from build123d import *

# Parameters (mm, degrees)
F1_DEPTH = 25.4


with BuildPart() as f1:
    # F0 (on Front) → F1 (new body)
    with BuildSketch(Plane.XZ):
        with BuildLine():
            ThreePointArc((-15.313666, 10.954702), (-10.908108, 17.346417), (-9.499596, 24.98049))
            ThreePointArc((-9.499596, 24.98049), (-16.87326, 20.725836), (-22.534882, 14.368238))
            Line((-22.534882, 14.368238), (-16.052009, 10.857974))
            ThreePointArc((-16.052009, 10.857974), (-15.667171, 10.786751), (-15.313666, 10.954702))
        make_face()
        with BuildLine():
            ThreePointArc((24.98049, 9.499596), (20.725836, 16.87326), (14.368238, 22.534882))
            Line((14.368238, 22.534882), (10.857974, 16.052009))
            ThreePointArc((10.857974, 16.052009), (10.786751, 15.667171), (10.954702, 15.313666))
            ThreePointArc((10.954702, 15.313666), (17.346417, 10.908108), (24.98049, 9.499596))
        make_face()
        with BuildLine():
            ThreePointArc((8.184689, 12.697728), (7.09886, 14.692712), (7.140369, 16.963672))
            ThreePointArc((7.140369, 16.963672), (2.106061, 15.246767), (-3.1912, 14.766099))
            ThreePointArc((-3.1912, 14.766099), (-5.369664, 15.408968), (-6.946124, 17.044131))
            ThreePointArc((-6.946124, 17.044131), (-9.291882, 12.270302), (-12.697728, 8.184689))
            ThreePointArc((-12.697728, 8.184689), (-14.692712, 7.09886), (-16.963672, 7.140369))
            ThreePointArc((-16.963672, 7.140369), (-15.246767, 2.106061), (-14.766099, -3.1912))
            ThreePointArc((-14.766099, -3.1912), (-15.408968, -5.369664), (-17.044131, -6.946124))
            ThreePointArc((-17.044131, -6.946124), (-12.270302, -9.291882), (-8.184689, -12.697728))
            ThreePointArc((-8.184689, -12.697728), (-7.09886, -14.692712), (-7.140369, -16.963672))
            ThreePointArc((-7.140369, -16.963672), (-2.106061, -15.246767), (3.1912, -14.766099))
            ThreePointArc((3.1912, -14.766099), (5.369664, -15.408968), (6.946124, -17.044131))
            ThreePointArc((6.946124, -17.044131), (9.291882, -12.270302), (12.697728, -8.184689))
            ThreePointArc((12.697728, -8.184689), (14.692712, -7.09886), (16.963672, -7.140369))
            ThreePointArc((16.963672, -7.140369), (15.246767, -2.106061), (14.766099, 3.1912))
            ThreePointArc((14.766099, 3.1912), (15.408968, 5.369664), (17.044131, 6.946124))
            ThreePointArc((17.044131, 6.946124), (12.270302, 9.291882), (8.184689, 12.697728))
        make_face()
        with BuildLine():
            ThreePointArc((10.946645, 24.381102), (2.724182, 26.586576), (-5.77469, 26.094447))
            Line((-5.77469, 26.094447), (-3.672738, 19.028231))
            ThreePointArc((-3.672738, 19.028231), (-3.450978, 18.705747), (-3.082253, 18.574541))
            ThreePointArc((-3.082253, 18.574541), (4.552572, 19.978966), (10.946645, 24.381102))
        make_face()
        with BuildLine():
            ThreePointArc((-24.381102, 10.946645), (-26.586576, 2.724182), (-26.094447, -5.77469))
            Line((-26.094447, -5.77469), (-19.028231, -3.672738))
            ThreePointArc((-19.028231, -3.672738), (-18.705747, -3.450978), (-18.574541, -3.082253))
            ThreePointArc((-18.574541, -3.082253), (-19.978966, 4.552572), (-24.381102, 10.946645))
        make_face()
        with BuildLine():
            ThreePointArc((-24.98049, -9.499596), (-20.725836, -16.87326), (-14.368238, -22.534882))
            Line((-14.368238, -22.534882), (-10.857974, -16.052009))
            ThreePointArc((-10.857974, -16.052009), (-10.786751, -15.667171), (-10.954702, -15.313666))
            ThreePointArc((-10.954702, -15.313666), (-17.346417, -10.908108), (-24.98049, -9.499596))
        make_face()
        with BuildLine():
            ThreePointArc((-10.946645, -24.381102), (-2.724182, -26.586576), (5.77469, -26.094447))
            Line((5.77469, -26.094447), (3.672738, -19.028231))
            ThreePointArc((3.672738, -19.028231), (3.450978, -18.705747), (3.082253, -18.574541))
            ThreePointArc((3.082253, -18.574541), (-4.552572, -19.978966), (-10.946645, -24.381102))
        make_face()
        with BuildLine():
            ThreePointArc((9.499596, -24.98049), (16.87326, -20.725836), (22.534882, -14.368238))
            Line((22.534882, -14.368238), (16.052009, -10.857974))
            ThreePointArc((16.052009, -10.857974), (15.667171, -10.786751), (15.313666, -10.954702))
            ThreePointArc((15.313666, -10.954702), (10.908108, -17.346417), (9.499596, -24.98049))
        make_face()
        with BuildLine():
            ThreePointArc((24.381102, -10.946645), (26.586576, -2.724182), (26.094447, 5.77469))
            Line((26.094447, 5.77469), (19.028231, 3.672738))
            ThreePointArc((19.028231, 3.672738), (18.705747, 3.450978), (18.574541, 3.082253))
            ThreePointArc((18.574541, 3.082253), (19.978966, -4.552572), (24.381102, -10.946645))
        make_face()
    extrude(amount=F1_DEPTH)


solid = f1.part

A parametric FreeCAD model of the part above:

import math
import FreeCAD as App
import Part
import Sketcher

V = App.Vector
Q = App.Units.Quantity

doc = App.newDocument("Part")
body = doc.addObject("PartDesign::Body", "Body")
body.AllowCompound = True

# Sketch on XZ plane
sketch1 = body.newObject("Sketcher::SketchObject", "Sketch")
sketch1.AttachmentSupport = (doc.getObject("XZ_Plane"), [""])
sketch1.MapMode = "FlatFace"
sketch1.addGeometry([
    Part.ArcOfCircle(Part.Circle(V(-28.1, 24.5, 0), V(0, 0, 1), 18.6), math.radians(-47), math.radians(2)),  # 0
    Part.ArcOfCircle(Part.Circle(V(0, 0, 0), V(0, 0, 1), 26.7), math.radians(111), math.radians(147)),  # 1
    Part.LineSegment(V(-22.5, 14.4, 0), V(-16.1, 10.9, 0)),  # 2
    Part.ArcOfCircle(Part.Circle(V(-15.7, 11.4, 0), V(0, 0, 1), 0.6), math.radians(-118), math.radians(-47)),  # 3
    Part.ArcOfCircle(Part.Circle(V(0, 0, 0), V(0, 0, 1), 26.7), math.radians(21), math.radians(57)),  # 4
    Part.LineSegment(V(14.4, 22.5, 0), V(10.9, 16.1, 0)),  # 5
    Part.ArcOfCircle(Part.Circle(V(11.4, 15.7, 0), V(0, 0, 1), 0.6), math.radians(152), math.radians(223)),  # 6
    Part.ArcOfCircle(Part.Circle(V(24.5, 28.1, 0), V(0, 0, 1), 18.6), math.radians(-137), math.radians(-88)),  # 7
    Part.ArcOfCircle(Part.Circle(V(11.4, 15.7, 0), V(0, 0, 1), 4.4), math.radians(164), math.radians(223)),  # 8
    Part.ArcOfCircle(Part.Circle(V(-2.6, 37.1, 0), V(0, 0, 1), 22.4), math.radians(-92), math.radians(-64)),  # 9
    Part.ArcOfCircle(Part.Circle(V(-3.1, 19.2, 0), V(0, 0, 1), 4.4), math.radians(-151), math.radians(-92)),  # 10
    Part.ArcOfCircle(Part.Circle(V(-28.1, 24.5, 0), V(0, 0, 1), 22.4), math.radians(-47), math.radians(-19)),  # 11
    Part.ArcOfCircle(Part.Circle(V(-15.7, 11.4, 0), V(0, 0, 1), 4.4), math.radians(-106), math.radians(-47)),  # 12
    Part.ArcOfCircle(Part.Circle(V(-37.1, -2.6, 0), V(0, 0, 1), 22.4), math.radians(-2), math.radians(26)),  # 13
    Part.ArcOfCircle(Part.Circle(V(-19.2, -3.1, 0), V(0, 0, 1), 4.4), math.radians(-61), math.radians(-2)),  # 14
    Part.ArcOfCircle(Part.Circle(V(-24.5, -28.1, 0), V(0, 0, 1), 22.4), math.radians(43), math.radians(71)),  # 15
    Part.ArcOfCircle(Part.Circle(V(-11.4, -15.7, 0), V(0, 0, 1), 4.4), math.radians(-16), math.radians(43)),  # 16
    Part.ArcOfCircle(Part.Circle(V(2.6, -37.1, 0), V(0, 0, 1), 22.4), math.radians(88), math.radians(116)),  # 17
    Part.ArcOfCircle(Part.Circle(V(3.1, -19.2, 0), V(0, 0, 1), 4.4), math.radians(29), math.radians(88)),  # 18
    Part.ArcOfCircle(Part.Circle(V(28.1, -24.5, 0), V(0, 0, 1), 22.4), math.radians(133), math.radians(161)),  # 19
    Part.ArcOfCircle(Part.Circle(V(15.7, -11.4, 0), V(0, 0, 1), 4.4), math.radians(74), math.radians(133)),  # 20
    Part.ArcOfCircle(Part.Circle(V(37.1, 2.6, 0), V(0, 0, 1), 22.4), math.radians(178), math.radians(206)),  # 21
    Part.ArcOfCircle(Part.Circle(V(19.2, 3.1, 0), V(0, 0, 1), 4.4), math.radians(119), math.radians(178)),  # 22
    Part.ArcOfCircle(Part.Circle(V(24.5, 28.1, 0), V(0, 0, 1), 22.4), math.radians(-137), math.radians(-109)),  # 23
    Part.ArcOfCircle(Part.Circle(V(0, 0, 0), V(0, 0, 1), 26.7), math.radians(66), math.radians(102)),  # 24
    Part.LineSegment(V(-5.8, 26.1, 0), V(-3.7, 19, 0)),  # 25
    Part.ArcOfCircle(Part.Circle(V(-3.1, 19.2, 0), V(0, 0, 1), 0.6), math.radians(-163), math.radians(-92)),  # 26
    Part.ArcOfCircle(Part.Circle(V(-2.6, 37.1, 0), V(0, 0, 1), 18.6), math.radians(-92), math.radians(-43)),  # 27
    Part.ArcOfCircle(Part.Circle(V(0, 0, 0), V(0, 0, 1), 26.7), math.radians(156), math.radians(192)),  # 28
    Part.LineSegment(V(-26.1, -5.8, 0), V(-19, -3.7, 0)),  # 29
    Part.ArcOfCircle(Part.Circle(V(-19.2, -3.1, 0), V(0, 0, 1), 0.6), math.radians(-73), math.radians(-2)),  # 30
    Part.ArcOfCircle(Part.Circle(V(-37.1, -2.6, 0), V(0, 0, 1), 18.6), math.radians(-2), math.radians(47)),  # 31
    Part.ArcOfCircle(Part.Circle(V(0, 0, 0), V(0, 0, 1), 26.7), math.radians(-159), math.radians(-123)),  # 32
    Part.LineSegment(V(-14.4, -22.5, 0), V(-10.9, -16.1, 0)),  # 33
    Part.ArcOfCircle(Part.Circle(V(-11.4, -15.7, 0), V(0, 0, 1), 0.6), math.radians(-28), math.radians(43)),  # 34
    Part.ArcOfCircle(Part.Circle(V(-24.5, -28.1, 0), V(0, 0, 1), 18.6), math.radians(43), math.radians(92)),  # 35
    Part.ArcOfCircle(Part.Circle(V(0, 0, 0), V(0, 0, 1), 26.7), math.radians(-114), math.radians(-78)),  # 36
    Part.LineSegment(V(5.8, -26.1, 0), V(3.7, -19, 0)),  # 37
    Part.ArcOfCircle(Part.Circle(V(3.1, -19.2, 0), V(0, 0, 1), 0.6), math.radians(17), math.radians(88)),  # 38
    Part.ArcOfCircle(Part.Circle(V(2.6, -37.1, 0), V(0, 0, 1), 18.6), math.radians(88), math.radians(137)),  # 39
    Part.ArcOfCircle(Part.Circle(V(0, 0, 0), V(0, 0, 1), 26.7), math.radians(-69), math.radians(-33)),  # 40
    Part.LineSegment(V(22.5, -14.4, 0), V(16.1, -10.9, 0)),  # 41
    Part.ArcOfCircle(Part.Circle(V(15.7, -11.4, 0), V(0, 0, 1), 0.6), math.radians(62), math.radians(133)),  # 42
    Part.ArcOfCircle(Part.Circle(V(28.1, -24.5, 0), V(0, 0, 1), 18.6), math.radians(133), math.radians(182)),  # 43
    Part.ArcOfCircle(Part.Circle(V(0, 0, 0), V(0, 0, 1), 26.7), math.radians(-24), math.radians(12)),  # 44
    Part.LineSegment(V(26.1, 5.8, 0), V(19, 3.7, 0)),  # 45
    Part.ArcOfCircle(Part.Circle(V(19.2, 3.1, 0), V(0, 0, 1), 0.6), math.radians(107), math.radians(178)),  # 46
    Part.ArcOfCircle(Part.Circle(V(37.1, 2.6, 0), V(0, 0, 1), 18.6), math.radians(178), math.radians(227)),  # 47
], False)
sketch1.addConstraint([
    Sketcher.Constraint("Coincident", 0, 2, 1, 1),
    Sketcher.Constraint("Coincident", 1, 2, 2, 1),
    Sketcher.Constraint("Tangent", 2, 2, 3, 1),
    Sketcher.Constraint("Tangent", 3, 2, 0, 1),
    Sketcher.Constraint("Coincident", 4, 2, 5, 1),
    Sketcher.Constraint("Tangent", 5, 2, 6, 1),
    Sketcher.Constraint("Tangent", 6, 2, 7, 1),
    Sketcher.Constraint("Coincident", 7, 2, 4, 1),
    Sketcher.Constraint("Coincident", 8, 1, 9, 2),
    Sketcher.Constraint("Tangent", 9, 1, 10, 2),
    Sketcher.Constraint("Coincident", 10, 1, 11, 2),
    Sketcher.Constraint("Tangent", 11, 1, 12, 2),
    Sketcher.Constraint("Coincident", 12, 1, 13, 2),
    Sketcher.Constraint("Tangent", 13, 1, 14, 2),
    Sketcher.Constraint("Coincident", 14, 1, 15, 2),
    Sketcher.Constraint("Tangent", 15, 1, 16, 2),
    Sketcher.Constraint("Coincident", 16, 1, 17, 2),
    Sketcher.Constraint("Tangent", 17, 1, 18, 2),
    Sketcher.Constraint("Coincident", 18, 1, 19, 2),
    Sketcher.Constraint("Tangent", 19, 1, 20, 2),
    Sketcher.Constraint("Coincident", 20, 1, 21, 2),
    Sketcher.Constraint("Tangent", 21, 1, 22, 2),
    Sketcher.Constraint("Coincident", 22, 1, 23, 2),
    Sketcher.Constraint("Tangent", 23, 1, 8, 2),
    Sketcher.Constraint("Coincident", 24, 2, 25, 1),
    Sketcher.Constraint("Tangent", 25, 2, 26, 1),
    Sketcher.Constraint("Tangent", 26, 2, 27, 1),
    Sketcher.Constraint("Coincident", 27, 2, 24, 1),
    Sketcher.Constraint("Coincident", 28, 2, 29, 1),
    Sketcher.Constraint("Tangent", 29, 2, 30, 1),
    Sketcher.Constraint("Tangent", 30, 2, 31, 1),
    Sketcher.Constraint("Coincident", 31, 2, 28, 1),
    Sketcher.Constraint("Coincident", 32, 2, 33, 1),
    Sketcher.Constraint("Tangent", 33, 2, 34, 1),
    Sketcher.Constraint("Tangent", 34, 2, 35, 1),
    Sketcher.Constraint("Coincident", 35, 2, 32, 1),
    Sketcher.Constraint("Coincident", 36, 2, 37, 1),
    Sketcher.Constraint("Tangent", 37, 2, 38, 1),
    Sketcher.Constraint("Tangent", 38, 2, 39, 1),
    Sketcher.Constraint("Coincident", 39, 2, 36, 1),
    Sketcher.Constraint("Coincident", 40, 2, 41, 1),
    Sketcher.Constraint("Tangent", 41, 2, 42, 1),
    Sketcher.Constraint("Tangent", 42, 2, 43, 1),
    Sketcher.Constraint("Coincident", 43, 2, 40, 1),
    Sketcher.Constraint("Coincident", 44, 2, 45, 1),
    Sketcher.Constraint("Tangent", 45, 2, 46, 1),
    Sketcher.Constraint("Tangent", 46, 2, 47, 1),
    Sketcher.Constraint("Coincident", 47, 2, 44, 1),
    Sketcher.Constraint("Coincident", 1, 3, -1, 1),
    Sketcher.Constraint("Coincident", 4, 3, -1, 1),
    Sketcher.Constraint("Coincident", 24, 3, -1, 1),
    Sketcher.Constraint("Coincident", 28, 3, -1, 1),
    Sketcher.Constraint("Coincident", 32, 3, -1, 1),
    Sketcher.Constraint("Coincident", 36, 3, -1, 1),
    Sketcher.Constraint("Coincident", 40, 3, -1, 1),
    Sketcher.Constraint("Coincident", 44, 3, -1, 1),
    Sketcher.Constraint("Coincident", 8, 3, 6, 3),
    Sketcher.Constraint("Coincident", 11, 3, 0, 3),
    Sketcher.Constraint("Coincident", 12, 3, 3, 3),
    Sketcher.Constraint("Coincident", 23, 3, 7, 3),
    Sketcher.Constraint("Coincident", 26, 3, 10, 3),
    Sketcher.Constraint("Coincident", 30, 3, 14, 3),
    Sketcher.Constraint("Coincident", 34, 3, 16, 3),
    Sketcher.Constraint("Coincident", 35, 3, 15, 3),
    Sketcher.Constraint("Coincident", 38, 3, 18, 3),
    Sketcher.Constraint("Coincident", 42, 3, 20, 3),
    Sketcher.Constraint("Coincident", 43, 3, 19, 3),
    Sketcher.Constraint("Coincident", 46, 3, 22, 3),
    Sketcher.Constraint("Equal", 1, 4),
    Sketcher.Constraint("Equal", 3, 6),
    Sketcher.Constraint("Equal", 0, 7),
    Sketcher.Constraint("Equal", 8, 12),
    Sketcher.Constraint("Equal", 9, 13),
    Sketcher.Constraint("Equal", 10, 14),
    Sketcher.Constraint("Equal", 11, 15),
    Sketcher.Constraint("Equal", 12, 16),
    Sketcher.Constraint("Equal", 13, 17),
    Sketcher.Constraint("Equal", 14, 18),
    Sketcher.Constraint("Equal", 15, 19),
    Sketcher.Constraint("Equal", 16, 20),
    Sketcher.Constraint("Equal", 17, 21),
    Sketcher.Constraint("Equal", 18, 22),
    Sketcher.Constraint("Equal", 6, 26),
    Sketcher.Constraint("Equal", 7, 27),
    Sketcher.Constraint("Equal", 24, 28),
    Sketcher.Constraint("Equal", 26, 30),
    Sketcher.Constraint("Equal", 27, 31),
    Sketcher.Constraint("Equal", 4, 32),
    Sketcher.Constraint("Equal", 30, 34),
    Sketcher.Constraint("Equal", 28, 36),
    Sketcher.Constraint("Equal", 34, 38),
    Sketcher.Constraint("Equal", 35, 39),
    Sketcher.Constraint("Equal", 32, 40),
    Sketcher.Constraint("Equal", 38, 42),
    Sketcher.Constraint("Equal", 36, 44),
    Sketcher.Constraint("Equal", 42, 46),
    Sketcher.Constraint("Equal", 43, 47),
    Sketcher.Constraint("Symmetric", 7, 3, 15, 3, -1, 1),
    Sketcher.Constraint("Symmetric", 9, 3, 17, 3, -1, 1),
    Sketcher.Constraint("Symmetric", 0, 3, 19, 3, -1, 1),
    Sketcher.Constraint("Symmetric", 13, 3, 21, 3, -1, 1),
    Sketcher.Constraint("Symmetric", 5, 2, 33, 2, -1, 1),
    Sketcher.Constraint("Symmetric", 25, 2, 37, 2, -1, 1),
    Sketcher.Constraint("Symmetric", 2, 2, 41, 2, -1, 1),
    Sketcher.Constraint("Symmetric", 29, 2, 45, 2, -1, 1),
    Sketcher.Constraint("Perpendicular", 2, 5),
    Sketcher.Constraint("Perpendicular", 25, 29),
    Sketcher.Constraint("Equal", 2, 5),
    Sketcher.Constraint("Equal", 5, 25),
    Sketcher.Constraint("Equal", 25, 29),
    Sketcher.Constraint("Radius", 3, Q("0.025 in")),
    Sketcher.Constraint("Radius", 8, Q("0.175 in")),
    Sketcher.Constraint("Radius", 10, Q("0.1749999 in")),
    Sketcher.Constraint("DistanceX", 0, 2, -1, 1, Q("0.3739998 in")),
    Sketcher.Constraint("DistanceY", -1, 1, 7, 2, Q("0.3739998 in")),
    Sketcher.Constraint("Radius", 1, Q("26.72578 mm")),
    Sketcher.Constraint("DistanceX", 1, 2, -1, 1, Q("0.8872001 in")),
    Sketcher.Constraint("DistanceY", -1, 1, 4, 2, Q("0.8872001 in")),
    Sketcher.Constraint("Radius", 0, Q("18.574804 mm")),
    Sketcher.Constraint("Radius", 9, Q("22.384816 mm")),
    Sketcher.Constraint("Radius", 24, Q("26.725777 mm")),
    Sketcher.Constraint("DistanceY", -1, 1, 3, 2, Q("10.954702 mm")),
    Sketcher.Constraint("DistanceX", 9, 1, -1, 1, Q("3.1912 mm")),
    Sketcher.Constraint("DistanceY", -1, 1, 9, 1, Q("14.766099 mm")),
    Sketcher.Constraint("DistanceX", 13, 1, -1, 1, Q("14.766099 mm")),
    Sketcher.Constraint("DistanceY", 13, 1, -1, 1, Q("3.1912 mm")),
    Sketcher.Constraint("DistanceY", -1, 1, 27, 2, Q("24.381102 mm")),
    Sketcher.Constraint("DistanceX", 31, 2, -1, 1, Q("24.381102 mm")),
    Sketcher.Constraint("DistanceY", 39, 2, -1, 1, Q("24.381102 mm")),
    Sketcher.Constraint("DistanceX", -1, 1, 47, 2, Q("24.381102 mm")),
    Sketcher.Constraint("Distance", 25, Q("7.372219 mm")),
    Sketcher.Constraint("DistanceY", -1, 1, 9, 3, Q("37.141761 mm")),
])
pad1 = body.newObject("PartDesign::Pad", "Pad")
pad1.Profile = sketch1
pad1.Length = Q("1 in")

doc.recompute()
